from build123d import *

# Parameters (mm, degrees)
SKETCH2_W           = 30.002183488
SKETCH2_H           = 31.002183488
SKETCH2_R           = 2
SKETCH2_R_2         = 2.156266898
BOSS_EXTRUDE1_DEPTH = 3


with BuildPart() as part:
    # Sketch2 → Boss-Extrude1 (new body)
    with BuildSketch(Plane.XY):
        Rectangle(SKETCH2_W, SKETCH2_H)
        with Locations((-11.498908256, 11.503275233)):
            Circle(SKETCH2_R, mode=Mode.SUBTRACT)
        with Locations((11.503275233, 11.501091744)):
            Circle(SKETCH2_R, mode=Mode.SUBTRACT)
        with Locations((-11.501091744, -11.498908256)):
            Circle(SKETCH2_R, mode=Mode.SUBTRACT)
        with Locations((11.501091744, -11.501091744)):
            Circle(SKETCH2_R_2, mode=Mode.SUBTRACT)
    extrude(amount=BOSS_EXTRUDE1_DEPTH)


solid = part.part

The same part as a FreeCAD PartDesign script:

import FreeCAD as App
import Part
import Sketcher
from FreeCAD import Vector

doc = App.newDocument("Part")
body = doc.addObject("PartDesign::Body", "Body")

sketch1 = doc.addObject("Sketcher::SketchObject", "Sketch")
body.addObject(sketch1)
sketch1.AttachmentSupport = (doc.XY_Plane, [""])
sketch1.MapMode = "FlatFace"
sketch1.addGeometry(Part.LineSegment(Vector(-15, 15.5, 0), Vector(-15, -15.5, 0)), False)
sketch1.addGeometry(Part.LineSegment(Vector(-15, -15.5, 0), Vector(15, -15.5, 0)), False)
sketch1.addGeometry(Part.LineSegment(Vector(15, -15.5, 0), Vector(15, 15.5, 0)), False)
sketch1.addGeometry(Part.LineSegment(Vector(15, 15.5, 0), Vector(-15, 15.5, 0)), False)
sketch1.addGeometry(Part.Circle(Vector(-11.5, -11.5, 0), Vector(0, 0, 1), 2), False)
sketch1.addGeometry(Part.Circle(Vector(11.5, -11.5, 0), Vector(0, 0, 1), 2.2), False)
sketch1.addGeometry(Part.Circle(Vector(-11.5, 11.5, 0), Vector(0, 0, 1), 2), False)
sketch1.addGeometry(Part.Circle(Vector(11.5, 11.5, 0), Vector(0, 0, 1), 2), False)
sketch1.addConstraint(Sketcher.Constraint("Coincident", 0, 2, 1, 1))
sketch1.addConstraint(Sketcher.Constraint("Coincident", 1, 2, 2, 1))
sketch1.addConstraint(Sketcher.Constraint("Coincident", 2, 2, 3, 1))
sketch1.addConstraint(Sketcher.Constraint("Coincident", 3, 2, 0, 1))
sketch1.addConstraint(Sketcher.Constraint("Vertical", 0))
sketch1.addConstraint(Sketcher.Constraint("Horizontal", 1))
sketch1.addConstraint(Sketcher.Constraint("Vertical", 2))
sketch1.addConstraint(Sketcher.Constraint("Horizontal", 3))
sketch1.addConstraint(Sketcher.Constraint("Equal", 4, 6))
sketch1.addConstraint(Sketcher.Constraint("Equal", 6, 7))
sketch1.addConstraint(Sketcher.Constraint("Symmetric", 0, 2, 2, 2, -1, 1))
sketch1.addConstraint(Sketcher.Constraint("Diameter", 4, 4.0))
sketch1.addConstraint(Sketcher.Constraint("DistanceX", 6, 3, 5, 3, 23.0))
sketch1.addConstraint(Sketcher.Constraint("DistanceY", 4, 3, 7, 3, 23.0))
sketch1.addConstraint(Sketcher.Constraint("DistanceY", 0, 2, 5, 3, 4.0))
sketch1.addConstraint(Sketcher.Constraint("DistanceY", 7, 3, 2, 2, 4.0))
sketch1.addConstraint(Sketcher.Constraint("DistanceX", 0, 2, 4, 3, 3.5))
sketch1.addConstraint(Sketcher.Constraint("DistanceX", 5, 3, 1, 2, 3.5))
sketch1.addConstraint(Sketcher.Constraint("Diameter", 5, 4.312534))
sketch1.addConstraint(Sketcher.Constraint("DistanceX", 1, 1, 1, 2, 30.002183))
sketch1.addConstraint(Sketcher.Constraint("DistanceY", 0, 2, 0, 1, 31.002183))
sketch1.addConstraint(Sketcher.Constraint("DistanceY", -1, 1, 6, 3, 11.503275))
sketch1.addConstraint(Sketcher.Constraint("DistanceX", -1, 1, 7, 3, 11.503275))
pad1 = doc.addObject("PartDesign::Pad", "Pad")
body.addObject(pad1)
pad1.Profile = sketch1
pad1.Length = 3

doc.recompute()
